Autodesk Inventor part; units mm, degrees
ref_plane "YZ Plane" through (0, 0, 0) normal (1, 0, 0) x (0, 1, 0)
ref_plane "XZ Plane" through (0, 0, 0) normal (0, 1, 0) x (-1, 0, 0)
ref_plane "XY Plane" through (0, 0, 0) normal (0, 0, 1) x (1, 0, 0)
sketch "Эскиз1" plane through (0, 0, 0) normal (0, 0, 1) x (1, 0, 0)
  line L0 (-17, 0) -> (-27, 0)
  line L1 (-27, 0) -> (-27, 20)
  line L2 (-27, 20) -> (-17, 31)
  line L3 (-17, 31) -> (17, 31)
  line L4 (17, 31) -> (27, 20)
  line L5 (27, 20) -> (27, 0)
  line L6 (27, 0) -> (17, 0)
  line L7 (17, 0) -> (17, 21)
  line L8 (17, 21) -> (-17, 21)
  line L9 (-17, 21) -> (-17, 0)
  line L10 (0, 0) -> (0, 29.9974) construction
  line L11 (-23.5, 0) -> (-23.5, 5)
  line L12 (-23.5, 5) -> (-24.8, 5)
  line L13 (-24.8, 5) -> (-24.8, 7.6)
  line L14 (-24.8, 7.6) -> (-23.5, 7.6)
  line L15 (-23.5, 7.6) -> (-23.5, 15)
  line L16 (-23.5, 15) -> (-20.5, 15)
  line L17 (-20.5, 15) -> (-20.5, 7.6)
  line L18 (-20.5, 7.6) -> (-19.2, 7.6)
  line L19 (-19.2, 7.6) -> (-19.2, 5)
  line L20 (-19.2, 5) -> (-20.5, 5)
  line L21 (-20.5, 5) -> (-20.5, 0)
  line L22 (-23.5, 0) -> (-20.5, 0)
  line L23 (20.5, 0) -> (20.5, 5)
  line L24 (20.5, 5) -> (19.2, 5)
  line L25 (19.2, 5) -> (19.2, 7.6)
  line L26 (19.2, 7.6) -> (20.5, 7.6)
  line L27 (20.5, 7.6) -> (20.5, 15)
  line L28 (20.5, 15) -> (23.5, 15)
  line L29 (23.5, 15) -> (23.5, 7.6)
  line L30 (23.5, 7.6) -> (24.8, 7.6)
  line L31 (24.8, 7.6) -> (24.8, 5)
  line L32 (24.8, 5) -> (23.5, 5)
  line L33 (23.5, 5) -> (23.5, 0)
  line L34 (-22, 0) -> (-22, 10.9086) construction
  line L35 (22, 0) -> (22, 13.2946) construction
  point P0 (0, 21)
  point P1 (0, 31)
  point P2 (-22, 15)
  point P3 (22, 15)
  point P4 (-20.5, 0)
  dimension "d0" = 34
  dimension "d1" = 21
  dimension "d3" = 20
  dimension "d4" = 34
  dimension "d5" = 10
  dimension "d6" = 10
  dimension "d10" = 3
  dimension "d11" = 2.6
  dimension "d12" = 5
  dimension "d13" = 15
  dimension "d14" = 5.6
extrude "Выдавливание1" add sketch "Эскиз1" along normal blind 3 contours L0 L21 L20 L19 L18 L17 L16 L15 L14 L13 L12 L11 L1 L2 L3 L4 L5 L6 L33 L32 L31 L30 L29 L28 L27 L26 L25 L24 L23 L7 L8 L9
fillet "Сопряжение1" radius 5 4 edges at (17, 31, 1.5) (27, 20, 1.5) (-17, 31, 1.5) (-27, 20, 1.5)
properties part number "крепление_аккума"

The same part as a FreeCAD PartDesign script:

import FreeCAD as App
import Part
import Sketcher

V = App.Vector
Q = App.Units.Quantity


def edges_at(feature, points):
    """Names of the edges that pass closest to the given points."""
    edges = feature.Shape.Edges
    near = lambda p: min(range(len(edges)), key=lambda i: edges[i].distToShape(Part.Vertex(*p))[0])
    return sorted({f"Edge{near(p) + 1}" for p in points})

doc = App.newDocument("Part")
params = doc.addObject("Spreadsheet::Sheet", "Params")
for row, (alias, value) in enumerate([
    ("sketch1_width", "34 mm"),
    ("sketch1_width2", "3 mm"),
    ("sketch1_height", "21 mm"),
    ("sketch1_height2", "5 mm"),
    ("sketch1_height3", "20 mm"),
    ("pad1_length", "3 mm"),
    ("fillet_radius", "5 mm"),
], start=1):
    params.set(f"A{row}", alias)
    params.set(f"B{row}", "=" + value)
    params.setAlias(f"B{row}", alias)

body = doc.addObject("PartDesign::Body", "Body")

# Sketch on XY plane
sketch1 = doc.addObject("Sketcher::SketchObject", "Sketch")
body.addObject(sketch1)
sketch1.AttachmentSupport = (doc.XY_Plane, [""])
sketch1.MapMode = "FlatFace"
sketch1.addGeometry([
    Part.LineSegment(V(-20.5, 0, 0), V(-17, 0, 0)),  # 0
    Part.LineSegment(V(-17, 0, 0), V(-17, 21, 0)),  # 1
    Part.LineSegment(V(-17, 21, 0), V(17, 21, 0)),  # 2
    Part.LineSegment(V(17, 21, 0), V(17, 0, 0)),  # 3
    Part.LineSegment(V(17, 0, 0), V(20.5, 0, 0)),  # 4
    Part.LineSegment(V(20.5, 0, 0), V(20.5, 5, 0)),  # 5
    Part.LineSegment(V(20.5, 5, 0), V(19.2, 5, 0)),  # 6
    Part.LineSegment(V(19.2, 5, 0), V(19.2, 7.6, 0)),  # 7
    Part.LineSegment(V(19.2, 7.6, 0), V(20.5, 7.6, 0)),  # 8
    Part.LineSegment(V(20.5, 7.6, 0), V(20.5, 15, 0)),  # 9
    Part.LineSegment(V(20.5, 15, 0), V(23.5, 15, 0)),  # 10
    Part.LineSegment(V(23.5, 15, 0), V(23.5, 7.6, 0)),  # 11
    Part.LineSegment(V(23.5, 7.6, 0), V(24.8, 7.6, 0)),  # 12
    Part.LineSegment(V(24.8, 7.6, 0), V(24.8, 5, 0)),  # 13
    Part.LineSegment(V(24.8, 5, 0), V(23.5, 5, 0)),  # 14
    Part.LineSegment(V(23.5, 5, 0), V(23.5, 0, 0)),  # 15
    Part.LineSegment(V(23.5, 0, 0), V(27, 0, 0)),  # 16
    Part.LineSegment(V(27, 0, 0), V(27, 20, 0)),  # 17
    Part.LineSegment(V(27, 20, 0), V(17, 31, 0)),  # 18
    Part.LineSegment(V(17, 31, 0), V(-17, 31, 0)),  # 19
    Part.LineSegment(V(-17, 31, 0), V(-27, 20, 0)),  # 20
    Part.LineSegment(V(-27, 20, 0), V(-27, 0, 0)),  # 21
    Part.LineSegment(V(-27, 0, 0), V(-23.5, 0, 0)),  # 22
    Part.LineSegment(V(-23.5, 0, 0), V(-23.5, 5, 0)),  # 23
    Part.LineSegment(V(-23.5, 5, 0), V(-24.8, 5, 0)),  # 24
    Part.LineSegment(V(-24.8, 5, 0), V(-24.8, 7.6, 0)),  # 25
    Part.LineSegment(V(-24.8, 7.6, 0), V(-23.5, 7.6, 0)),  # 26
    Part.LineSegment(V(-23.5, 7.6, 0), V(-23.5, 15, 0)),  # 27
    Part.LineSegment(V(-23.5, 15, 0), V(-20.5, 15, 0)),  # 28
    Part.LineSegment(V(-20.5, 15, 0), V(-20.5, 7.6, 0)),  # 29
    Part.LineSegment(V(-20.5, 7.6, 0), V(-19.2, 7.6, 0)),  # 30
    Part.LineSegment(V(-19.2, 7.6, 0), V(-19.2, 5, 0)),  # 31
    Part.LineSegment(V(-19.2, 5, 0), V(-20.5, 5, 0)),  # 32
    Part.LineSegment(V(-20.5, 5, 0), V(-20.5, 0, 0)),  # 33
], False)
sketch1.addConstraint([
    Sketcher.Constraint("Coincident", 0, 2, 1, 1),
    Sketcher.Constraint("Coincident", 1, 2, 2, 1),
    Sketcher.Constraint("Coincident", 2, 2, 3, 1),
    Sketcher.Constraint("Coincident", 3, 2, 4, 1),
    Sketcher.Constraint("Coincident", 4, 2, 5, 1),
    Sketcher.Constraint("Coincident", 5, 2, 6, 1),
    Sketcher.Constraint("Coincident", 6, 2, 7, 1),
    Sketcher.Constraint("Coincident", 7, 2, 8, 1),
    Sketcher.Constraint("Coincident", 8, 2, 9, 1),
    Sketcher.Constraint("Coincident", 9, 2, 10, 1),
    Sketcher.Constraint("Coincident", 10, 2, 11, 1),
    Sketcher.Constraint("Coincident", 11, 2, 12, 1),
    Sketcher.Constraint("Coincident", 12, 2, 13, 1),
    Sketcher.Constraint("Coincident", 13, 2, 14, 1),
    Sketcher.Constraint("Coincident", 14, 2, 15, 1),
    Sketcher.Constraint("Coincident", 15, 2, 16, 1),
    Sketcher.Constraint("Coincident", 16, 2, 17, 1),
    Sketcher.Constraint("Coincident", 17, 2, 18, 1),
    Sketcher.Constraint("Coincident", 18, 2, 19, 1),
    Sketcher.Constraint("Coincident", 19, 2, 20, 1),
    Sketcher.Constraint("Coincident", 20, 2, 21, 1),
    Sketcher.Constraint("Coincident", 21, 2, 22, 1),
    Sketcher.Constraint("Coincident", 22, 2, 23, 1),
    Sketcher.Constraint("Coincident", 23, 2, 24, 1),
    Sketcher.Constraint("Coincident", 24, 2, 25, 1),
    Sketcher.Constraint("Coincident", 25, 2, 26, 1),
    Sketcher.Constraint("Coincident", 26, 2, 27, 1),
    Sketcher.Constraint("Coincident", 27, 2, 28, 1),
    Sketcher.Constraint("Coincident", 28, 2, 29, 1),
    Sketcher.Constraint("Coincident", 29, 2, 30, 1),
    Sketcher.Constraint("Coincident", 30, 2, 31, 1),
    Sketcher.Constraint("Coincident", 31, 2, 32, 1),
    Sketcher.Constraint("Coincident", 32, 2, 33, 1),
    Sketcher.Constraint("Coincident", 33, 2, 0, 1),
    Sketcher.Constraint("Horizontal", 0),
    Sketcher.Constraint("Vertical", 1),
    Sketcher.Constraint("Horizontal", 2),
    Sketcher.Constraint("Vertical", 3),
    Sketcher.Constraint("Horizontal", 4),
    Sketcher.Constraint("Vertical", 5),
    Sketcher.Constraint("Horizontal", 6),
    Sketcher.Constraint("Vertical", 7),
    Sketcher.Constraint("Horizontal", 8),
    Sketcher.Constraint("Vertical", 9),
    Sketcher.Constraint("Horizontal", 10),
    Sketcher.Constraint("Vertical", 11),
    Sketcher.Constraint("Horizontal", 12),
    Sketcher.Constraint("Vertical", 13),
    Sketcher.Constraint("Horizontal", 14),
    Sketcher.Constraint("Vertical", 15),
    Sketcher.Constraint("Horizontal", 16),
    Sketcher.Constraint("Vertical", 17),
    Sketcher.Constraint("Horizontal", 19),
    Sketcher.Constraint("Vertical", 21),
    Sketcher.Constraint("Horizontal", 22),
    Sketcher.Constraint("Vertical", 23),
    Sketcher.Constraint("Horizontal", 24),
    Sketcher.Constraint("Vertical", 25),
    Sketcher.Constraint("Horizontal", 26),
    Sketcher.Constraint("Vertical", 27),
    Sketcher.Constraint("Horizontal", 28),
    Sketcher.Constraint("Vertical", 29),
    Sketcher.Constraint("Horizontal", 30),
    Sketcher.Constraint("Vertical", 31),
    Sketcher.Constraint("Horizontal", 32),
    Sketcher.Constraint("Vertical", 33),
    Sketcher.Constraint("Symmetric", 0, 2, 3, 2, -1, 1),
    Sketcher.Constraint("Symmetric", 16, 2, 21, 2, -1, 1),
    Sketcher.Constraint("Symmetric", 15, 2, 22, 2, -2),
    Sketcher.Constraint("Symmetric", 13, 2, 24, 2, -2),
    Sketcher.Constraint("Symmetric", 11, 2, 26, 2, -2),
    Sketcher.Constraint("Symmetric", 9, 2, 28, 2, -2),
    Sketcher.Constraint("Symmetric", 7, 2, 30, 2, -2),
    Sketcher.Constraint("Symmetric", 5, 2, 32, 2, -2),
    Sketcher.Constraint("PointOnObject", 0, 2, -1),
    Sketcher.Constraint("Horizontal", 8, 2, 11, 2),
    Sketcher.Constraint("Horizontal", 6, 2, 13, 2),
    Sketcher.Constraint("Horizontal", 17, 2, 20, 2),
    Sketcher.Constraint("Vertical", 5, 2, 8, 2),
    Sketcher.Constraint("Vertical", 11, 2, 14, 2),
    Sketcher.Constraint("Vertical", 3, 2, 18, 2),
    Sketcher.Constraint("Vertical", 1, 2, 19, 2),
    Sketcher.Constraint("Equal", 8, 12),
    Sketcher.Constraint("Equal", 4, 16),
    Sketcher.Constraint("DistanceX", 2, 1, 2, 2, Q("34 mm")),
    Sketcher.Constraint("DistanceX", 10, 1, 10, 2, Q("3 mm")),
    Sketcher.Constraint("DistanceY", 1, 1, 1, 2, Q("21 mm")),
    Sketcher.Constraint("DistanceY", 5, 1, 5, 2, Q("5 mm")),
    Sketcher.Constraint("DistanceY", 17, 1, 17, 2, Q("20 mm")),
    Sketcher.Constraint("DistanceY", 7, 1, 7, 2, Q("2.6 mm")),
    Sketcher.Constraint("DistanceY", -1, 1, 9, 2, Q("15 mm")),
    Sketcher.Constraint("DistanceX", 2, 2, 17, 2, Q("10 mm")),
    Sketcher.Constraint("DistanceY", 2, 2, 18, 2, Q("10 mm")),
    Sketcher.Constraint("DistanceX", 7, 2, 12, 2, Q("5.6 mm")),
])
sketch1.setExpression("Constraints[84]", "Params.sketch1_width")
sketch1.setExpression("Constraints[85]", "Params.sketch1_width2")
sketch1.setExpression("Constraints[86]", "Params.sketch1_height")
sketch1.setExpression("Constraints[87]", "Params.sketch1_height2")
sketch1.setExpression("Constraints[88]", "Params.sketch1_height3")
pad1 = doc.addObject("PartDesign::Pad", "Pad")
body.addObject(pad1)
pad1.Profile = sketch1
pad1.setExpression("Length", "Params.pad1_length")
doc.recompute()

fillet = doc.addObject("PartDesign::Fillet", "Fillet")
body.addObject(fillet)
fillet.Base = (pad1, edges_at(pad1, [
    (17, 31, 1.5),
    (27, 20, 1.5),
    (-17, 31, 1.5),
    (-27, 20, 1.5),
]))
fillet.setExpression("Radius", "Params.fillet_radius")

doc.recompute()
